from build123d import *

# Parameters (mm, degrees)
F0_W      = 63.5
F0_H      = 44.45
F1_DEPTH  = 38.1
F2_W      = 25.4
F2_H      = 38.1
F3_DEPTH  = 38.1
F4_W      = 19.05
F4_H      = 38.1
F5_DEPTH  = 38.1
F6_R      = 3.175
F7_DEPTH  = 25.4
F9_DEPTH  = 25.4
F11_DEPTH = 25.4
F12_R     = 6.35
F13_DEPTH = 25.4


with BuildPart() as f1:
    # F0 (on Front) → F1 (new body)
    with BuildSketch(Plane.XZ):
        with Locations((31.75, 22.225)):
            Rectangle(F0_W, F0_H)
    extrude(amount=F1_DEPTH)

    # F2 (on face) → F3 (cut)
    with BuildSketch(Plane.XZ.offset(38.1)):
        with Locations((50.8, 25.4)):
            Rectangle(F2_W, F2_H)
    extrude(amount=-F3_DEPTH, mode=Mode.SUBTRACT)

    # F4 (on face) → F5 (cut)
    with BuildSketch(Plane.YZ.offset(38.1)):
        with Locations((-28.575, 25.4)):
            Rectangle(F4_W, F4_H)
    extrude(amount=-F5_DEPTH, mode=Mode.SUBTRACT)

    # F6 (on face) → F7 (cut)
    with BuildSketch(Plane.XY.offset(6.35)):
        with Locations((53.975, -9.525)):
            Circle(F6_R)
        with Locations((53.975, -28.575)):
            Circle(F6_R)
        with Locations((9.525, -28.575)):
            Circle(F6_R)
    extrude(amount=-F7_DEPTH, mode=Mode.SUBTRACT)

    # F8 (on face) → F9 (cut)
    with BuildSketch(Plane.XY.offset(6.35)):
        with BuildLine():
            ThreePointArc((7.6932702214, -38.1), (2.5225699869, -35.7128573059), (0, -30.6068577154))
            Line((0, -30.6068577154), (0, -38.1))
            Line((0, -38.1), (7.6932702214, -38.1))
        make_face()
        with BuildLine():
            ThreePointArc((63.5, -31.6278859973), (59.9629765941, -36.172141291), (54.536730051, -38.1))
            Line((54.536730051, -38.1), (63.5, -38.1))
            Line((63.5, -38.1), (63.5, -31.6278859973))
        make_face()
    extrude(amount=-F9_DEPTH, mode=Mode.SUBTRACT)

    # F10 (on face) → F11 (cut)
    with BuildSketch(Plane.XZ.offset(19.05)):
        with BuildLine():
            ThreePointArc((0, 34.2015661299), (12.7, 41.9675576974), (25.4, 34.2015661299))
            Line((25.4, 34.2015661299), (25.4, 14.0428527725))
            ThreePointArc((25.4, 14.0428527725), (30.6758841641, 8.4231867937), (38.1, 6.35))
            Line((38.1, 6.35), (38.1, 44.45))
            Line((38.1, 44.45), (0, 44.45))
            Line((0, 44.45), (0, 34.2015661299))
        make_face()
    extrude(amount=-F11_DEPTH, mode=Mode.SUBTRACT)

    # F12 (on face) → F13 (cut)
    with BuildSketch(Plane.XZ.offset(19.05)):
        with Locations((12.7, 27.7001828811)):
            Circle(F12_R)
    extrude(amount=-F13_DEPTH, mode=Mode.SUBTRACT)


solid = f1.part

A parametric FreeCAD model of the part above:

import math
import FreeCAD as App
import Part
import Sketcher

V = App.Vector
Q = App.Units.Quantity


def add_polygon(sketch, points):
    """Adds a closed chain of lines whose ends are joined by coincident constraints."""
    first, n = sketch.GeometryCount, len(points)
    for a, b in zip(points, points[1:] + points[:1]):
        sketch.addGeometry(Part.LineSegment(App.Vector(*a, 0), App.Vector(*b, 0)), False)
    for i in range(n):
        sketch.addConstraint(Sketcher.Constraint("Coincident", first + i, 2, first + (i + 1) % n, 1))

doc = App.newDocument("Part")
body = doc.addObject("PartDesign::Body", "Body")

# Sketch on XZ plane
sketch1 = body.newObject("Sketcher::SketchObject", "Sketch")
sketch1.AttachmentSupport = (doc.getObject("XZ_Plane"), [""])
sketch1.MapMode = "FlatFace"
add_polygon(sketch1, [(0, 44), (0, 0), (64, 0), (64, 44)])  # lines 0-3
sketch1.addConstraint([
    Sketcher.Constraint("Vertical", 0),
    Sketcher.Constraint("Horizontal", 1),
    Sketcher.Constraint("Vertical", 2),
    Sketcher.Constraint("Horizontal", 3),
    Sketcher.Constraint("Coincident", 0, 2, -1, 1),
    Sketcher.Constraint("DistanceX", 1, 1, 1, 2, Q("2.5 in")),
    Sketcher.Constraint("DistanceY", 0, 2, 0, 1, Q("1.75 in")),
])
pad1 = body.newObject("PartDesign::Pad", "Pad")
pad1.Profile = sketch1
pad1.Length = Q("1.5 in")

# Sketch on XZ plane
sketch2 = body.newObject("Sketcher::SketchObject", "Sketch001")
sketch2.AttachmentSupport = (doc.getObject("XZ_Plane"), [""])
sketch2.MapMode = "FlatFace"
sketch2.AttachmentOffset = App.Placement(V(0, 0, 1.5 * 25.4), App.Rotation())
add_polygon(sketch2, [(38, 44), (38, 6), (64, 6), (64, 44)])  # lines 0-3
sketch2.addConstraint([
    Sketcher.Constraint("Vertical", 0),
    Sketcher.Constraint("Horizontal", 1),
    Sketcher.Constraint("Vertical", 2),
    Sketcher.Constraint("Horizontal", 3),
    Sketcher.Constraint("DistanceX", 1, 1, 1, 2, Q("1 in")),
    Sketcher.Constraint("DistanceY", 0, 2, 0, 1, Q("1.5 in")),
    Sketcher.Constraint("DistanceX", -1, 1, 0, 2, Q("1.5 in")),
    Sketcher.Constraint("DistanceY", -1, 1, 0, 2, Q("0.25 in")),
])
pocket1 = body.newObject("PartDesign::Pocket", "Pocket")
pocket1.Profile = sketch2
pocket1.Length = Q("1.5 in")

# Sketch on YZ plane
sketch3 = body.newObject("Sketcher::SketchObject", "Sketch002")
sketch3.AttachmentSupport = (doc.getObject("YZ_Plane"), [""])
sketch3.MapMode = "FlatFace"
sketch3.AttachmentOffset = App.Placement(V(0, 0, 1.5 * 25.4), App.Rotation())
add_polygon(sketch3, [(-38, 44), (-38, 6), (-19, 6), (-19, 44)])  # lines 0-3
sketch3.addConstraint([
    Sketcher.Constraint("Vertical", 0),
    Sketcher.Constraint("Horizontal", 1),
    Sketcher.Constraint("Vertical", 2),
    Sketcher.Constraint("Horizontal", 3),
    Sketcher.Constraint("DistanceY", 0, 2, 0, 1, Q("1.5 in")),
    Sketcher.Constraint("DistanceX", 1, 1, 1, 2, Q("0.75 in")),
    Sketcher.Constraint("DistanceX", 0, 2, -1, 1, Q("1.5 in")),
    Sketcher.Constraint("DistanceY", -1, 1, 0, 2, Q("0.25 in")),
])
pocket2 = body.newObject("PartDesign::Pocket", "Pocket001")
pocket2.Profile = sketch3
pocket2.Length = Q("1.5 in")

# Sketch on XY plane
sketch4 = body.newObject("Sketcher::SketchObject", "Sketch003")
sketch4.AttachmentSupport = (doc.getObject("XY_Plane"), [""])
sketch4.MapMode = "FlatFace"
sketch4.AttachmentOffset = App.Placement(V(0, 0, 0.25 * 25.4), App.Rotation())
sketch4.addGeometry([
    Part.Circle(V(54, -9.5, 0), V(0, 0, 1), 3.2),
    Part.Circle(V(54, -28.6, 0), V(0, 0, 1), 3.2),
    Part.Circle(V(9.5, -28.6, 0), V(0, 0, 1), 3.2),
], False)
sketch4.addConstraint([
    Sketcher.Constraint("Equal", 0, 1),
    Sketcher.Constraint("Equal", 1, 2),
    Sketcher.Constraint("Horizontal", 1, 3, 2, 3),
    Sketcher.Constraint("Vertical", 0, 3, 1, 3),
    Sketcher.Constraint("Diameter", 0, Q("0.25 in")),
    Sketcher.Constraint("DistanceY", 1, 3, 0, 3, Q("0.75 in")),
    Sketcher.Constraint("DistanceX", 2, 3, 1, 3, Q("1.75 in")),
    Sketcher.Constraint("DistanceX", -1, 1, 0, 3, Q("2.125 in")),
    Sketcher.Constraint("DistanceY", 0, 3, -1, 1, Q("0.375 in")),
])
pocket3 = body.newObject("PartDesign::Pocket", "Pocket002")
pocket3.Profile = sketch4
pocket3.Length = Q("1 in")

# Sketch on XY plane
sketch5 = body.newObject("Sketcher::SketchObject", "Sketch004")
sketch5.AttachmentSupport = (doc.getObject("XY_Plane"), [""])
sketch5.MapMode = "FlatFace"
sketch5.AttachmentOffset = App.Placement(V(0, 0, 0.25 * 25.4), App.Rotation())
sketch5.addGeometry([
    Part.ArcOfCircle(Part.Circle(V(8, -30, 0), V(0, 0, 1), 9), math.radians(-173), math.radians(-95)),  # 0
    Part.LineSegment(V(0, -31, 0), V(0, -38, 0)),  # 1
    Part.LineSegment(V(0, -38, 0), V(8, -38, 0)),  # 2
    Part.ArcOfCircle(Part.Circle(V(54, -28, 0), V(0, 0, 1), 10), math.radians(-87), math.radians(-22)),  # 3
    Part.LineSegment(V(55, -38, 0), V(64, -38, 0)),  # 4
    Part.LineSegment(V(64, -38, 0), V(64, -32, 0)),  # 5
], False)
sketch5.addConstraint([
    Sketcher.Constraint("Coincident", 0, 1, 1, 1),
    Sketcher.Constraint("Coincident", 1, 2, 2, 1),
    Sketcher.Constraint("Coincident", 2, 2, 0, 2),
    Sketcher.Constraint("Coincident", 3, 1, 4, 1),
    Sketcher.Constraint("Coincident", 4, 2, 5, 1),
    Sketcher.Constraint("Coincident", 5, 2, 3, 2),
    Sketcher.Constraint("Vertical", 1),
    Sketcher.Constraint("Horizontal", 2),
    Sketcher.Constraint("Horizontal", 4),
    Sketcher.Constraint("Vertical", 5),
    Sketcher.Constraint("PointOnObject", 0, 1, -2),
    Sketcher.Constraint("Horizontal", 2, 2, 3, 1),
    Sketcher.Constraint("DistanceY", 1, 2, -1, 1, Q("1.5 in")),
    Sketcher.Constraint("DistanceX", -1, 1, 4, 2, Q("2.5 in")),
    Sketcher.Constraint("Radius", 0, Q("8.545848 mm")),
    Sketcher.Constraint("Radius", 3, Q("10.275468 mm")),
    Sketcher.Constraint("DistanceX", 2, 1, 2, 2, Q("7.69327 mm")),
    Sketcher.Constraint("DistanceX", 4, 1, 4, 2, Q("8.96327 mm")),
    Sketcher.Constraint("DistanceY", 1, 2, 1, 1, Q("7.493142 mm")),
    Sketcher.Constraint("DistanceY", 5, 1, 5, 2, Q("6.472114 mm")),
])
pocket4 = body.newObject("PartDesign::Pocket", "Pocket003")
pocket4.Profile = sketch5
pocket4.Length = Q("1 in")

# Sketch on XZ plane
sketch6 = body.newObject("Sketcher::SketchObject", "Sketch005")
sketch6.AttachmentSupport = (doc.getObject("XZ_Plane"), [""])
sketch6.MapMode = "FlatFace"
sketch6.AttachmentOffset = App.Placement(V(0, 0, 0.75 * 25.4), App.Rotation())
sketch6.addGeometry([
    Part.ArcOfCircle(Part.Circle(V(13, 28, 0), V(0, 0, 1), 14), math.radians(27), math.radians(153)),  # 0
    Part.LineSegment(V(25, 34, 0), V(25, 14, 0)),  # 1
    Part.ArcOfCircle(Part.Circle(V(38, 21, 0), V(0, 0, 1), 14), math.radians(-152), math.radians(-90)),  # 2
    Part.LineSegment(V(38, 6, 0), V(38, 44, 0)),  # 3
    Part.LineSegment(V(38, 44, 0), V(0, 44, 0)),  # 4
    Part.LineSegment(V(0, 44, 0), V(0, 34, 0)),  # 5
], False)
sketch6.addConstraint([
    Sketcher.Constraint("Coincident", 0, 1, 1, 1),
    Sketcher.Constraint("Coincident", 1, 2, 2, 1),
    Sketcher.Constraint("Coincident", 2, 2, 3, 1),
    Sketcher.Constraint("Coincident", 3, 2, 4, 1),
    Sketcher.Constraint("Coincident", 4, 2, 5, 1),
    Sketcher.Constraint("Coincident", 5, 2, 0, 2),
    Sketcher.Constraint("Vertical", 1),
    Sketcher.Constraint("Vertical", 3),
    Sketcher.Constraint("Horizontal", 4),
    Sketcher.Constraint("Vertical", 5),
    Sketcher.Constraint("PointOnObject", 4, 2, -2),
    Sketcher.Constraint("Horizontal", 0, 1, 5, 2),
    Sketcher.Constraint("Equal", 4, 3),
    Sketcher.Constraint("DistanceX", 4, 2, 4, 1, Q("1.5 in")),
    Sketcher.Constraint("DistanceX", -1, 1, 0, 1, Q("1 in")),
    Sketcher.Constraint("DistanceX", 0, 3, 2, 3, Q("1 in")),
    Sketcher.Constraint("DistanceY", -1, 1, 2, 2, Q("0.25 in")),
    Sketcher.Constraint("Radius", 0, Q("14.267375 mm")),
    Sketcher.Constraint("Radius", 2, Q("14.329534 mm")),
    Sketcher.Constraint("DistanceY", 1, 2, 1, 1, Q("20.158713 mm")),
])
pocket5 = body.newObject("PartDesign::Pocket", "Pocket004")
pocket5.Profile = sketch6
pocket5.Length = Q("1 in")

# Sketch on XZ plane
sketch7 = body.newObject("Sketcher::SketchObject", "Sketch006")
sketch7.AttachmentSupport = (doc.getObject("XZ_Plane"), [""])
sketch7.MapMode = "FlatFace"
sketch7.AttachmentOffset = App.Placement(V(0, 0, 0.75 * 25.4), App.Rotation())
sketch7.addGeometry(Part.Circle(V(13, 28, 0), V(0, 0, 1), 6), False)
sketch7.addConstraint([
    Sketcher.Constraint("Diameter", 0, Q("0.5 in")),
    Sketcher.Constraint("DistanceX", -1, 1, 0, 3, Q("0.5 in")),
    Sketcher.Constraint("DistanceY", -1, 1, 0, 3, Q("27.700183 mm")),
])
pocket6 = body.newObject("PartDesign::Pocket", "Pocket005")
pocket6.Profile = sketch7
pocket6.Length = Q("1 in")

doc.recompute()
